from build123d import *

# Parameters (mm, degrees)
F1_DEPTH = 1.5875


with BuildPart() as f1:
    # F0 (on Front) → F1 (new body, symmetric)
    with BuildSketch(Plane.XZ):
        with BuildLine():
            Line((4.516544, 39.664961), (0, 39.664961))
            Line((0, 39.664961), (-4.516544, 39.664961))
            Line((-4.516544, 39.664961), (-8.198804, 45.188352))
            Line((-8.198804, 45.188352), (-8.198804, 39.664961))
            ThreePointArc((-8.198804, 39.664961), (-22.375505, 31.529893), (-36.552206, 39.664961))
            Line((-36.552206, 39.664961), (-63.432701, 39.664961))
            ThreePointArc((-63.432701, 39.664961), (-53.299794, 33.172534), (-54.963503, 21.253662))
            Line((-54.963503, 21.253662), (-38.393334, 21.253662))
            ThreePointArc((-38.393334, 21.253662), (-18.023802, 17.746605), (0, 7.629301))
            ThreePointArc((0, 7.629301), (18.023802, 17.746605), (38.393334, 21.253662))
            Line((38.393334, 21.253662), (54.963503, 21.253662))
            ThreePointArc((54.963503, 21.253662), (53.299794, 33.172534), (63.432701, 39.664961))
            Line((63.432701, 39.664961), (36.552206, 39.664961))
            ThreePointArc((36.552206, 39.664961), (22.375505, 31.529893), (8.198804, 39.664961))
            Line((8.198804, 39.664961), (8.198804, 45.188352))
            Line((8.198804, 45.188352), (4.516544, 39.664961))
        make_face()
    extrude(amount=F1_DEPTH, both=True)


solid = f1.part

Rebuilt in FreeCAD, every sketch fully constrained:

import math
import FreeCAD as App
import Part
import Sketcher
Q = App.Units.Quantity

doc = App.newDocument("Part")
body = doc.addObject("PartDesign::Body", "Body")

# Sketch on XZ plane
sketch1 = body.newObject("Sketcher::SketchObject", "Sketch")
sketch1.AttachmentSupport = (doc.getObject("XZ_Plane"), [""])
sketch1.MapMode = "FlatFace"
sketch1.addGeometry(Part.LineSegment(App.Vector(4.516544, 39.664961, 0), App.Vector(-4.516544, 39.664961, 0)), False)
sketch1.addGeometry(Part.LineSegment(App.Vector(-4.516544, 39.664961, 0), App.Vector(-8.198804, 45.188352, 0)), False)
sketch1.addGeometry(Part.LineSegment(App.Vector(-8.198804, 45.188352, 0), App.Vector(-8.198804, 39.664961, 0)), False)
sketch1.addGeometry(Part.ArcOfCircle(Part.Circle(App.Vector(-22.375505, 47.95005, 0), App.Vector(0, 0, 1), 16.420157), math.radians(-149.697308), math.radians(-30.302692)), False)
sketch1.addGeometry(Part.LineSegment(App.Vector(-36.552206, 39.664961, 0), App.Vector(-63.432701, 39.664961, 0)), False)
sketch1.addGeometry(Part.ArcOfCircle(Part.Circle(App.Vector(-63.432701, 28.511396, 0), App.Vector(0, 0, 1), 11.153565), math.radians(-40.595136), math.radians(89.999999)), False)
sketch1.addGeometry(Part.LineSegment(App.Vector(-54.963503, 21.253662, 0), App.Vector(-38.393334, 21.253662, 0)), False)
sketch1.addGeometry(Part.ArcOfCircle(Part.Circle(App.Vector(-38.393332, -39.654558, 0), App.Vector(0, 0, 1), 60.90822), math.radians(50.92425), math.radians(90.000002)), False)
sketch1.addGeometry(Part.ArcOfCircle(Part.Circle(App.Vector(38.393332, -39.654558, 0), App.Vector(0, 0, 1), 60.90822), math.radians(89.999998), math.radians(129.07575)), False)
sketch1.addGeometry(Part.LineSegment(App.Vector(38.393334, 21.253662, 0), App.Vector(54.963503, 21.253662, 0)), False)
sketch1.addGeometry(Part.ArcOfCircle(Part.Circle(App.Vector(63.432701, 28.511396, 0), App.Vector(0, 0, 1), 11.153565), math.radians(90.000001), math.radians(220.595136)), False)
sketch1.addGeometry(Part.LineSegment(App.Vector(63.432701, 39.664961, 0), App.Vector(36.552206, 39.664961, 0)), False)
sketch1.addGeometry(Part.ArcOfCircle(Part.Circle(App.Vector(22.375505, 47.95005, 0), App.Vector(0, 0, 1), 16.420157), math.radians(-149.697308), math.radians(-30.302692)), False)
sketch1.addGeometry(Part.LineSegment(App.Vector(8.198804, 39.664961, 0), App.Vector(8.198804, 45.188352, 0)), False)
sketch1.addGeometry(Part.LineSegment(App.Vector(8.198804, 45.188352, 0), App.Vector(4.516544, 39.664961, 0)), False)
sketch1.addConstraint(Sketcher.Constraint("Coincident", 0, 2, 1, 1))
sketch1.addConstraint(Sketcher.Constraint("Coincident", 1, 2, 2, 1))
sketch1.addConstraint(Sketcher.Constraint("Coincident", 2, 2, 3, 2))
sketch1.addConstraint(Sketcher.Constraint("Coincident", 3, 1, 4, 1))
sketch1.addConstraint(Sketcher.Constraint("Tangent", 4, 2, 5, 2))
sketch1.addConstraint(Sketcher.Constraint("Coincident", 5, 1, 6, 1))
sketch1.addConstraint(Sketcher.Constraint("Tangent", 6, 2, 7, 2))
sketch1.addConstraint(Sketcher.Constraint("Coincident", 7, 1, 8, 2))
sketch1.addConstraint(Sketcher.Constraint("Tangent", 8, 1, 9, 1))
sketch1.addConstraint(Sketcher.Constraint("Coincident", 9, 2, 10, 2))
sketch1.addConstraint(Sketcher.Constraint("Tangent", 10, 1, 11, 1))
sketch1.addConstraint(Sketcher.Constraint("Coincident", 11, 2, 12, 2))
sketch1.addConstraint(Sketcher.Constraint("Coincident", 12, 1, 13, 1))
sketch1.addConstraint(Sketcher.Constraint("Coincident", 13, 2, 14, 1))
sketch1.addConstraint(Sketcher.Constraint("Coincident", 14, 2, 0, 1))
sketch1.addConstraint(Sketcher.Constraint("Horizontal", 0))
sketch1.addConstraint(Sketcher.Constraint("Vertical", 2))
sketch1.addConstraint(Sketcher.Constraint("Horizontal", 4))
sketch1.addConstraint(Sketcher.Constraint("Horizontal", 6))
sketch1.addConstraint(Sketcher.Constraint("Horizontal", 9))
sketch1.addConstraint(Sketcher.Constraint("Horizontal", 11))
sketch1.addConstraint(Sketcher.Constraint("Vertical", 13))
sketch1.addConstraint(Sketcher.Constraint("Equal", 7, 8))
sketch1.addConstraint(Sketcher.Constraint("Equal", 5, 10))
sketch1.addConstraint(Sketcher.Constraint("Equal", 3, 12))
sketch1.addConstraint(Sketcher.Constraint("Symmetric", 7, 3, 8, 3, -2))
sketch1.addConstraint(Sketcher.Constraint("Symmetric", 5, 3, 10, 3, -2))
sketch1.addConstraint(Sketcher.Constraint("Symmetric", 3, 3, 12, 3, -2))
sketch1.addConstraint(Sketcher.Constraint("Symmetric", 1, 2, 13, 2, -2))
sketch1.addConstraint(Sketcher.Constraint("Horizontal", 0, 2, 2, 2))
sketch1.addConstraint(Sketcher.Constraint("Horizontal", 2, 2, 3, 1))
sketch1.addConstraint(Sketcher.Constraint("Equal", 1, 14))
sketch1.addConstraint(Sketcher.Constraint("Radius", 7, Q("60.90822 mm")))
sketch1.addConstraint(Sketcher.Constraint("Radius", 3, Q("16.420157 mm")))
sketch1.addConstraint(Sketcher.Constraint("Radius", 5, Q("11.153565 mm")))
sketch1.addConstraint(Sketcher.Constraint("DistanceX", 6, 1, 6, 2, Q("16.570169 mm")))
sketch1.addConstraint(Sketcher.Constraint("DistanceY", 2, 2, 2, 1, Q("5.523391 mm")))
sketch1.addConstraint(Sketcher.Constraint("DistanceX", 5, 3, -1, 1, Q("63.432701 mm")))
sketch1.addConstraint(Sketcher.Constraint("DistanceY", -1, 1, 7, 1, Q("7.629301 mm")))
sketch1.addConstraint(Sketcher.Constraint("DistanceX", 3, 3, 1, 2, Q("14.176701 mm")))
sketch1.addConstraint(Sketcher.Constraint("DistanceX", 5, 3, 5, 1, Q("8.469198 mm")))
sketch1.addConstraint(Sketcher.Constraint("DistanceX", 5, 1, 3, 3, Q("32.587998 mm")))
sketch1.addConstraint(Sketcher.Constraint("Distance", 1, Q("6.638289 mm")))
pad1 = body.newObject("PartDesign::Pad", "Pad")
pad1.Profile = sketch1
pad1.Length = Q("0.125 in")
pad1.Midplane = True

doc.recompute()
